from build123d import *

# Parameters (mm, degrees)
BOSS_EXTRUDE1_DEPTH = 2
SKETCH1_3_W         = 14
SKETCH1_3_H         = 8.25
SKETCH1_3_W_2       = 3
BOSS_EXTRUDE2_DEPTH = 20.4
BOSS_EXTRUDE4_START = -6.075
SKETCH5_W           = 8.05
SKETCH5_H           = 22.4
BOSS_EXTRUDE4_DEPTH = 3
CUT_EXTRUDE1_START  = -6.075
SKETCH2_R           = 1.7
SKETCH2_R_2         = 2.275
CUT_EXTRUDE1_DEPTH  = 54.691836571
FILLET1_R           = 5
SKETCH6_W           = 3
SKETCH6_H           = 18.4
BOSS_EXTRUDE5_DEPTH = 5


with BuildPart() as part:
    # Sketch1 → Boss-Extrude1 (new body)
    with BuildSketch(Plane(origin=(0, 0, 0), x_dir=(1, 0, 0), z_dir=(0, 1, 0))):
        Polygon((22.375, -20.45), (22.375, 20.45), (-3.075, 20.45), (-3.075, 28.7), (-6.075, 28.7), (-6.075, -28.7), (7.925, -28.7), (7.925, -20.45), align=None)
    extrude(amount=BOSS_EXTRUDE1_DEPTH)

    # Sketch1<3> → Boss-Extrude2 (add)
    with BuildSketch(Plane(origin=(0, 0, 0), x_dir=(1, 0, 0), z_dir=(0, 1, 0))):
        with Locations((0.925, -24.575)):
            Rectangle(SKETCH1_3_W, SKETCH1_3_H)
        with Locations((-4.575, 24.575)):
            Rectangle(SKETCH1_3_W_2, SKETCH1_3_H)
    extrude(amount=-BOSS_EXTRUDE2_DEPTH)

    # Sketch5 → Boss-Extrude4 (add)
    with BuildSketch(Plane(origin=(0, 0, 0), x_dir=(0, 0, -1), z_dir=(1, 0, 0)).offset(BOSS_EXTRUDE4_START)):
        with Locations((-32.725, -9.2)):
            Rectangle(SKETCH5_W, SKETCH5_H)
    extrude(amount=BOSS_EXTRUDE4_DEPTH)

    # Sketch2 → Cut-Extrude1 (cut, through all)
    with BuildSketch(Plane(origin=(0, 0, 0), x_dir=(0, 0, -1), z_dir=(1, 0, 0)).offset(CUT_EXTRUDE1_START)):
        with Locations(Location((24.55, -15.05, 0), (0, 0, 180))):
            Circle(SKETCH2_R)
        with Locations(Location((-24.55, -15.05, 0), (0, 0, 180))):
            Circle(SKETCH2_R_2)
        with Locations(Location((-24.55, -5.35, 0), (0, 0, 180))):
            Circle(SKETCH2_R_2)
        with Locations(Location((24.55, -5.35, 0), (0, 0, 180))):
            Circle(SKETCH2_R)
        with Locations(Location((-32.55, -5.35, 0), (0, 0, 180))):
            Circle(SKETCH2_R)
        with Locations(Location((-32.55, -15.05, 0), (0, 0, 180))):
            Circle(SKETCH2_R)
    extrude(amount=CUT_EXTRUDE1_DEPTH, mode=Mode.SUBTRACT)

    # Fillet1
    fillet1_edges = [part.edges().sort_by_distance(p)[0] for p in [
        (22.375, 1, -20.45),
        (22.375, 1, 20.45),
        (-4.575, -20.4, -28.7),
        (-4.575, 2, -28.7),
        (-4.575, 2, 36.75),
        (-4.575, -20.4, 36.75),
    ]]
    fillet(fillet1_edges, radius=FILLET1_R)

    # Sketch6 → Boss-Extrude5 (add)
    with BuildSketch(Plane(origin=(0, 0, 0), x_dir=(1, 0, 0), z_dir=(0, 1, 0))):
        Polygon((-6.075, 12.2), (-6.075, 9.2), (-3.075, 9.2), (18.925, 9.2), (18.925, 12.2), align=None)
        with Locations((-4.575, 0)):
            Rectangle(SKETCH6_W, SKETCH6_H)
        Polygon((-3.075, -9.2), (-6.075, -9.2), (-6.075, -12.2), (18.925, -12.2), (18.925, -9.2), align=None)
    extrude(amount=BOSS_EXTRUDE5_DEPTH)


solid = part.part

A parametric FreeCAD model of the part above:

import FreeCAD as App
import Part
import Sketcher


def edges_at(feature, points):
    """Names of the edges that pass closest to the given points."""
    edges = feature.Shape.Edges
    near = lambda p: min(range(len(edges)), key=lambda i: edges[i].distToShape(Part.Vertex(*p))[0])
    return sorted({f"Edge{near(p) + 1}" for p in points})


def add_polygon(sketch, points):
    """Adds a closed chain of lines whose ends are joined by coincident constraints."""
    first, n = sketch.GeometryCount, len(points)
    for a, b in zip(points, points[1:] + points[:1]):
        sketch.addGeometry(Part.LineSegment(App.Vector(*a, 0), App.Vector(*b, 0)), False)
    for i in range(n):
        sketch.addConstraint(Sketcher.Constraint("Coincident", first + i, 2, first + (i + 1) % n, 1))

doc = App.newDocument("Part")
params = doc.addObject("Spreadsheet::Sheet", "Params")
for row, (alias, value) in enumerate([
    ("sketch1_width", "3 mm"),
    ("sketch1_width2", "14 mm"),
    ("sketch1_height", "40.9 mm"),
    ("sketch1_height2", "57.4 mm"),
    ("sketch1_width3", "25.45 mm"),
    ("pad1_length", "2 mm"),
    ("sketch2_width", "14 mm"),
    ("sketch2_width2", "3 mm"),
    ("sketch2_height", "8.25 mm"),
    ("pad2_length", "20.4 mm"),
    ("sketch3_width", "22.4 mm"),
    ("sketch3_height", "8.05 mm"),
    ("pad3_length", "3 mm"),
    ("sketch4_diameter", "3.4 mm"),
    ("sketch4_diameter2", "4.55 mm"),
    ("fillet_radius", "5 mm"),
    ("sketch5_width", "25 mm"),
    ("sketch5_width2", "22 mm"),
    ("sketch5_height", "3 mm"),
    ("sketch5_height2", "24.4 mm"),
    ("pad4_length", "5 mm"),
], start=1):
    params.set(f"A{row}", alias)
    params.set(f"B{row}", "=" + value)
    params.setAlias(f"B{row}", alias)

body = doc.addObject("PartDesign::Body", "Body")

sketch1 = doc.addObject("Sketcher::SketchObject", "Sketch")
body.addObject(sketch1)
sketch1.AttachmentSupport = (doc.XZ_Plane, [""])
sketch1.MapMode = "FlatFace"
add_polygon(sketch1, [(22.375, 20.45), (22.375, -20.45), (-3.075, -20.45), (-3.075, -28.7), (-6.075, -28.7), (-6.075, 28.7), (7.925, 28.7), (7.925, 20.45)])
sketch1.addConstraint([
    Sketcher.Constraint("Vertical", 0),
    Sketcher.Constraint("Horizontal", 1),
    Sketcher.Constraint("Vertical", 2),
    Sketcher.Constraint("Horizontal", 3),
    Sketcher.Constraint("Vertical", 4),
    Sketcher.Constraint("Horizontal", 5),
    Sketcher.Constraint("Vertical", 6),
    Sketcher.Constraint("Horizontal", 7),
    Sketcher.Constraint("Equal", 2, 6),
    Sketcher.Constraint("DistanceX", 3, 2, 3, 1, 3.0),
    Sketcher.Constraint("DistanceX", 5, 1, 5, 2, 14.0),
    Sketcher.Constraint("DistanceY", 0, 2, 0, 1, 40.9),
    Sketcher.Constraint("DistanceY", 4, 1, 4, 2, 57.4),
    Sketcher.Constraint("DistanceX", 1, 2, 1, 1, 25.45),
    Sketcher.Constraint("DistanceY", 2, 2, -1, 1, 28.7),
    Sketcher.Constraint("DistanceX", -1, 1, 0, 2, 22.375),
])
sketch1.setExpression("Constraints[17]", "Params.sketch1_width")
sketch1.setExpression("Constraints[18]", "Params.sketch1_width2")
sketch1.setExpression("Constraints[19]", "Params.sketch1_height")
sketch1.setExpression("Constraints[20]", "Params.sketch1_height2")
sketch1.setExpression("Constraints[21]", "Params.sketch1_width3")
pad1 = doc.addObject("PartDesign::Pad", "Pad")
body.addObject(pad1)
pad1.Profile = sketch1
pad1.setExpression("Length", "Params.pad1_length")
pad1.Reversed = True

sketch2 = doc.addObject("Sketcher::SketchObject", "Sketch001")
body.addObject(sketch2)
sketch2.AttachmentSupport = (doc.XZ_Plane, [""])
sketch2.MapMode = "FlatFace"
add_polygon(sketch2, [(-6.075, 20.45), (-6.075, 28.7), (7.925, 28.7), (7.925, 20.45)])
add_polygon(sketch2, [(-6.075, -28.7), (-6.075, -20.45), (-3.075, -20.45), (-3.075, -28.7)])
sketch2.addConstraint([
    Sketcher.Constraint("Vertical", 0),
    Sketcher.Constraint("Horizontal", 1),
    Sketcher.Constraint("Vertical", 2),
    Sketcher.Constraint("Horizontal", 3),
    Sketcher.Constraint("Vertical", 4),
    Sketcher.Constraint("Horizontal", 5),
    Sketcher.Constraint("Vertical", 6),
    Sketcher.Constraint("Horizontal", 7),
    Sketcher.Constraint("Symmetric", 3, 2, 4, 2, -1),
    Sketcher.Constraint("Equal", 2, 4),
    Sketcher.Constraint("DistanceX", 1, 1, 1, 2, 14.0),
    Sketcher.Constraint("DistanceX", 5, 1, 5, 2, 3.0),
    Sketcher.Constraint("DistanceY", 0, 1, 0, 2, 8.25),
    Sketcher.Constraint("DistanceY", -1, 1, 0, 2, 28.7),
    Sketcher.Constraint("DistanceX", 0, 2, -1, 1, 6.075),
])
sketch2.setExpression("Constraints[18]", "Params.sketch2_width")
sketch2.setExpression("Constraints[19]", "Params.sketch2_width2")
sketch2.setExpression("Constraints[20]", "Params.sketch2_height")
pad2 = doc.addObject("PartDesign::Pad", "Pad001")
body.addObject(pad2)
pad2.Profile = sketch2
pad2.setExpression("Length", "Params.pad2_length")

sketch3 = doc.addObject("Sketcher::SketchObject", "Sketch002")
body.addObject(sketch3)
sketch3.AttachmentSupport = (doc.YZ_Plane, [""])
sketch3.MapMode = "FlatFace"
sketch3.AttachmentOffset = App.Placement(App.Vector(0, 0, -6.075), App.Rotation())
add_polygon(sketch3, [(2, 36.75), (-20.4, 36.75), (-20.4, 28.7), (2, 28.7)])
sketch3.addConstraint([
    Sketcher.Constraint("Horizontal", 0),
    Sketcher.Constraint("Vertical", 1),
    Sketcher.Constraint("Horizontal", 2),
    Sketcher.Constraint("Vertical", 3),
    Sketcher.Constraint("DistanceX", 0, 2, 0, 1, 22.4),
    Sketcher.Constraint("DistanceX", -1, 1, 2, 2, 2.0),
    Sketcher.Constraint("DistanceY", 1, 2, 1, 1, 8.05),
    Sketcher.Constraint("DistanceY", -1, 1, 1, 2, 28.7),
])
sketch3.setExpression("Constraints[8]", "Params.sketch3_width")
sketch3.setExpression("Constraints[10]", "Params.sketch3_height")
pad3 = doc.addObject("PartDesign::Pad", "Pad002")
body.addObject(pad3)
pad3.Profile = sketch3
pad3.setExpression("Length", "Params.pad3_length")

sketch4 = doc.addObject("Sketcher::SketchObject", "Sketch003")
body.addObject(sketch4)
sketch4.AttachmentSupport = (doc.YZ_Plane, [""])
sketch4.MapMode = "FlatFace"
sketch4.AttachmentOffset = App.Placement(App.Vector(0, 0, -6.075), App.Rotation())
sketch4.addGeometry([
    Part.Circle(App.Vector(-15.05, -24.55, 0), App.Vector(0, 0, 1), 1.7),
    Part.Circle(App.Vector(-15.05, 24.55, 0), App.Vector(0, 0, 1), 2.275),
    Part.Circle(App.Vector(-5.35, 24.55, 0), App.Vector(0, 0, 1), 2.275),
    Part.Circle(App.Vector(-5.35, -24.55, 0), App.Vector(0, 0, 1), 1.7),
    Part.Circle(App.Vector(-5.35, 32.55, 0), App.Vector(0, 0, 1), 1.7),
    Part.Circle(App.Vector(-15.05, 32.55, 0), App.Vector(0, 0, 1), 1.7),
], False)
sketch4.addConstraint([
    Sketcher.Constraint("Equal", 1, 2),
    Sketcher.Constraint("Equal", 0, 3),
    Sketcher.Constraint("Equal", 3, 4),
    Sketcher.Constraint("Equal", 4, 5),
    Sketcher.Constraint("Symmetric", 0, 3, 1, 3, -1),
    Sketcher.Constraint("Symmetric", 2, 3, 3, 3, -1),
    Sketcher.Constraint("Horizontal", 1, 3, 2, 3),
    Sketcher.Constraint("Horizontal", 4, 3, 5, 3),
    Sketcher.Constraint("Vertical", 3, 3, 4, 3),
    Sketcher.Constraint("Vertical", 1, 3, 5, 3),
    Sketcher.Constraint("Diameter", 0, 3.4),
    Sketcher.Constraint("Diameter", 1, 4.55),
    Sketcher.Constraint("DistanceY", 2, 3, 4, 3, 8.0),
    Sketcher.Constraint("DistanceY", 0, 3, 1, 3, 49.1),
    Sketcher.Constraint("DistanceX", 1, 3, 2, 3, 9.7),
    Sketcher.Constraint("DistanceX", 0, 3, -1, 1, 15.05),
])
sketch4.setExpression("Constraints[10]", "Params.sketch4_diameter")
sketch4.setExpression("Constraints[11]", "Params.sketch4_diameter2")
pocket1 = doc.addObject("PartDesign::Pocket", "Pocket")
body.addObject(pocket1)
pocket1.Profile = sketch4
pocket1.Type = "ThroughAll"
pocket1.Reversed = True
doc.recompute()

fillet = doc.addObject("PartDesign::Fillet", "Fillet")
body.addObject(fillet)
fillet.Base = (pocket1, edges_at(pocket1, [
    (22.375, 1, -20.45),
    (22.375, 1, 20.45),
    (-4.575, -20.4, -28.7),
    (-4.575, 2, -28.7),
    (-4.575, 2, 36.75),
    (-4.575, -20.4, 36.75),
]))
fillet.setExpression("Radius", "Params.fillet_radius")

sketch5 = doc.addObject("Sketcher::SketchObject", "Sketch004")
body.addObject(sketch5)
sketch5.AttachmentSupport = (doc.XZ_Plane, [""])
sketch5.MapMode = "FlatFace"
add_polygon(sketch5, [(-6.075, -12.2), (-6.075, 12.2), (18.925, 12.2), (18.925, 9.2), (-3.075, 9.2), (-3.075, -9.2), (18.925, -9.2), (18.925, -12.2)])
sketch5.addConstraint([
    Sketcher.Constraint("Vertical", 0),
    Sketcher.Constraint("Horizontal", 1),
    Sketcher.Constraint("Vertical", 2),
    Sketcher.Constraint("Horizontal", 3),
    Sketcher.Constraint("Vertical", 4),
    Sketcher.Constraint("Horizontal", 5),
    Sketcher.Constraint("Vertical", 6),
    Sketcher.Constraint("Horizontal", 7),
    Sketcher.Constraint("Symmetric", 2, 2, 5, 2, -1),
    Sketcher.Constraint("Equal", 2, 6),
    Sketcher.Constraint("DistanceX", 1, 1, 1, 2, 25.0),
    Sketcher.Constraint("DistanceX", 3, 2, 3, 1, 22.0),
    Sketcher.Constraint("DistanceY", 2, 2, 2, 1, 3.0),
    Sketcher.Constraint("DistanceY", 0, 1, 0, 2, 24.4),
    Sketcher.Constraint("DistanceX", 0, 2, -1, 1, 6.075),
])
sketch5.setExpression("Constraints[18]", "Params.sketch5_width")
sketch5.setExpression("Constraints[19]", "Params.sketch5_width2")
sketch5.setExpression("Constraints[20]", "Params.sketch5_height")
sketch5.setExpression("Constraints[21]", "Params.sketch5_height2")
pad4 = doc.addObject("PartDesign::Pad", "Pad003")
body.addObject(pad4)
pad4.Profile = sketch5
pad4.setExpression("Length", "Params.pad4_length")
pad4.Reversed = True

doc.recompute()
